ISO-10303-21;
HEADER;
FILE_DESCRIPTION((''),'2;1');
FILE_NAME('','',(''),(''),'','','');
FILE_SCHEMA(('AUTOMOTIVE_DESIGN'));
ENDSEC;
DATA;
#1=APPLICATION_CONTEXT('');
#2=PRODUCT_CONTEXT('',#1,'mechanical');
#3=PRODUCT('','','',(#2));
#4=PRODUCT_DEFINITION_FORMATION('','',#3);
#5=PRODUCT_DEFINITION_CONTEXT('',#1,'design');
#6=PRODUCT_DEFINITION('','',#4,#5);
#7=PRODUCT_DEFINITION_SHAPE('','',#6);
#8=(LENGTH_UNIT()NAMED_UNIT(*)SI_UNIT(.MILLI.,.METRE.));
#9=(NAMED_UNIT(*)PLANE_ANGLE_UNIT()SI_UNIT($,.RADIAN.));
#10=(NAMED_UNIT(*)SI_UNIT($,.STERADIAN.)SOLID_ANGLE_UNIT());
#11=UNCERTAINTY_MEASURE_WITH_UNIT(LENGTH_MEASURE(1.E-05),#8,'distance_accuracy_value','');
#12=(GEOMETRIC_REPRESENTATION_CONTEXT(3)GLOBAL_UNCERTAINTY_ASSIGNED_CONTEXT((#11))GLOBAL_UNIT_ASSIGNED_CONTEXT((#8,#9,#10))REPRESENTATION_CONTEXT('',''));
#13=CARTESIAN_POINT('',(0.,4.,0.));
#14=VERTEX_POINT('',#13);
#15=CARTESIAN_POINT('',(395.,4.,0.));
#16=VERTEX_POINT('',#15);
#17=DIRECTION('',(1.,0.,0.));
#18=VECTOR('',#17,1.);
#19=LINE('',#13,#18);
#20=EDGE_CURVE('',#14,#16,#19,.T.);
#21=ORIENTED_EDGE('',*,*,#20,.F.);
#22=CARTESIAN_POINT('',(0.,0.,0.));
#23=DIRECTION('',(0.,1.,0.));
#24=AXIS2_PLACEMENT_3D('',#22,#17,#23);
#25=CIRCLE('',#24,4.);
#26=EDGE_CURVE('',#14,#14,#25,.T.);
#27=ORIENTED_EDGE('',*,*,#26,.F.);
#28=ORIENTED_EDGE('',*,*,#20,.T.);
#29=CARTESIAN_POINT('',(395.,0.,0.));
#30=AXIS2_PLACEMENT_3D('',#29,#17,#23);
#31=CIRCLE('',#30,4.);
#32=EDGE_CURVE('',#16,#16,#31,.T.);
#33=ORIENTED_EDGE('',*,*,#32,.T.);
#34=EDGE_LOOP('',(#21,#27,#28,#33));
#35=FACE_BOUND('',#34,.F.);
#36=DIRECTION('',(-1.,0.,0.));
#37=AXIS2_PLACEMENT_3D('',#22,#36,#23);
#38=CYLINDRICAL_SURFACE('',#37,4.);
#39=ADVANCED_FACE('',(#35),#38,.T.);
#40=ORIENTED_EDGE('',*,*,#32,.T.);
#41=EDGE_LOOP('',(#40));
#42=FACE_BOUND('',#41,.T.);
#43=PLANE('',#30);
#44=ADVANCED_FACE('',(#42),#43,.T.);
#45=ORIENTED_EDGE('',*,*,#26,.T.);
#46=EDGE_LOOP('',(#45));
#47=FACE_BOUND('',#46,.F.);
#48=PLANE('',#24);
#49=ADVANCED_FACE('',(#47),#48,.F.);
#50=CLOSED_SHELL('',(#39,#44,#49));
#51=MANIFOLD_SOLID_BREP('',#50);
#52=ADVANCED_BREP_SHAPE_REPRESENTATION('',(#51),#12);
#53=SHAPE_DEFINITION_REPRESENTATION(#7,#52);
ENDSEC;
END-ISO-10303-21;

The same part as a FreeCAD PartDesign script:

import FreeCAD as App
import Part
import Sketcher
from FreeCAD import Vector

doc = App.newDocument("Part")
body = doc.addObject("PartDesign::Body", "Body")

sketch1 = body.newObject("Sketcher::SketchObject", "Sketch")
sketch1.AttachmentSupport = (doc.getObject("YZ_Plane"), [""])
sketch1.MapMode = "FlatFace"
sketch1.addGeometry(Part.Circle(Vector(0, 0, 0), Vector(0, 0, 1), 4), False)
sketch1.addConstraint([
    Sketcher.Constraint("Coincident", 0, 3, -1, 1),
    Sketcher.Constraint("Diameter", 0, 8.0),
])
pad1 = body.newObject("PartDesign::Pad", "Pad")
pad1.Profile = sketch1
pad1.Length = 395

doc.recompute()
